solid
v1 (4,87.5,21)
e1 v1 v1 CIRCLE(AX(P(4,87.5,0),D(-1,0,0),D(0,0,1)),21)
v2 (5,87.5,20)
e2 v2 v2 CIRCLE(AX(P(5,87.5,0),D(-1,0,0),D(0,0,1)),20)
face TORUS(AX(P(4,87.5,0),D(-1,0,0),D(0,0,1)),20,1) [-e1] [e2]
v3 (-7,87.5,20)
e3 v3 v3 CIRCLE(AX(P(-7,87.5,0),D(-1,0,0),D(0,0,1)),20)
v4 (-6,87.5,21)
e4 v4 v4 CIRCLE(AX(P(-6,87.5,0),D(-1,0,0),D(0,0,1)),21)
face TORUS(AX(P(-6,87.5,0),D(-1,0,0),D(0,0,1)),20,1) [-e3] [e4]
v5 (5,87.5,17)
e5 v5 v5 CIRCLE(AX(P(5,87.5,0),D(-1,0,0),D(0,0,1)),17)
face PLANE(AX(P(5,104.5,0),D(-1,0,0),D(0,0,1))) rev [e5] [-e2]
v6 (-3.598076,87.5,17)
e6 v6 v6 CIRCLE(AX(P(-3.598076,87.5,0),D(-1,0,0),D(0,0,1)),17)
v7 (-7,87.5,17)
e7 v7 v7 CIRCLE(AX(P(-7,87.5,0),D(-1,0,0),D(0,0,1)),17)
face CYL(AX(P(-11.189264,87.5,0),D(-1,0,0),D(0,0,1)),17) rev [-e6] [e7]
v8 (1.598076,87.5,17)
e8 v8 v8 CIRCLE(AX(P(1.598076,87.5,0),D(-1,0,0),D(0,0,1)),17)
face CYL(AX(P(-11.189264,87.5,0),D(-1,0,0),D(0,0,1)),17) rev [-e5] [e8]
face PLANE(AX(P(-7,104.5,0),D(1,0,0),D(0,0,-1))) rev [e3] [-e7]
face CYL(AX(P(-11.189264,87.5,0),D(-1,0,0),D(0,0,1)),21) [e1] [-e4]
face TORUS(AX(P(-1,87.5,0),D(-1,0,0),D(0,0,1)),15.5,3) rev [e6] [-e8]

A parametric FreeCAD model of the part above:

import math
import FreeCAD as App
import Part
import Sketcher

V = App.Vector
Q = App.Units.Quantity

doc = App.newDocument("Part")
body = doc.addObject("PartDesign::Body", "Body")

sketch1 = body.newObject("Sketcher::SketchObject", "Sketch")
sketch1.AttachmentSupport = (doc.getObject("XY_Plane"), [""])
sketch1.MapMode = "FlatFace"
sketch1.addGeometry(Part.LineSegment(V(-7, 104.5, 0), V(-3.6, 104.5, 0)), False)
sketch1.addGeometry(Part.ArcOfCircle(Part.Circle(V(-1, 103, 0), V(0, 0, 1), 3), math.radians(30), math.radians(150)), False)
sketch1.addGeometry(Part.LineSegment(V(1.6, 104.5, 0), V(5, 104.5, 0)), False)
sketch1.addGeometry(Part.LineSegment(V(5, 104.5, 0), V(5, 107.5, 0)), False)
sketch1.addGeometry(Part.ArcOfCircle(Part.Circle(V(4, 107.5, 0), V(0, 0, 1), 1), math.radians(0), math.radians(90)), False)
sketch1.addGeometry(Part.LineSegment(V(4, 108.5, 0), V(-6, 108.5, 0)), False)
sketch1.addGeometry(Part.ArcOfCircle(Part.Circle(V(-6, 107.5, 0), V(0, 0, 1), 1), math.radians(90), math.radians(180)), False)
sketch1.addGeometry(Part.LineSegment(V(-7, 107.5, 0), V(-7, 104.5, 0)), False)
sketch1.addGeometry(Part.LineSegment(V(-7, 87.5, 0), V(5, 87.5, 0)), True)
sketch1.addConstraint(Sketcher.Constraint("Coincident", 0, 2, 1, 2))
sketch1.addConstraint(Sketcher.Constraint("Coincident", 1, 1, 2, 1))
sketch1.addConstraint(Sketcher.Constraint("Coincident", 2, 2, 3, 1))
sketch1.addConstraint(Sketcher.Constraint("Tangent", 3, 2, 4, 1))
sketch1.addConstraint(Sketcher.Constraint("Tangent", 4, 2, 5, 1))
sketch1.addConstraint(Sketcher.Constraint("Tangent", 5, 2, 6, 1))
sketch1.addConstraint(Sketcher.Constraint("Tangent", 6, 2, 7, 1))
sketch1.addConstraint(Sketcher.Constraint("Coincident", 7, 2, 0, 1))
sketch1.addConstraint(Sketcher.Constraint("Horizontal", 0))
sketch1.addConstraint(Sketcher.Constraint("Horizontal", 2))
sketch1.addConstraint(Sketcher.Constraint("Vertical", 3))
sketch1.addConstraint(Sketcher.Constraint("Horizontal", 5))
sketch1.addConstraint(Sketcher.Constraint("Vertical", 7))
sketch1.addConstraint(Sketcher.Constraint("Horizontal", 8))
sketch1.addConstraint(Sketcher.Constraint("Equal", 4, 6))
sketch1.addConstraint(Sketcher.Constraint("Horizontal", 0, 2, 1, 1))
sketch1.addConstraint(Sketcher.Constraint("Vertical", 7, 2, 8, 1))
sketch1.addConstraint(Sketcher.Constraint("Vertical", 3, 2, 8, 2))
sketch1.addConstraint(Sketcher.Constraint("Equal", 0, 2))
sketch1.addConstraint(Sketcher.Constraint("Radius", 1, Q("3 mm")))
sketch1.addConstraint(Sketcher.Constraint("Radius", 4, Q("1 mm")))
sketch1.addConstraint(Sketcher.Constraint("DistanceX", 5, 2, 5, 1, Q("10 mm")))
sketch1.addConstraint(Sketcher.Constraint("DistanceY", 3, 1, 3, 2, Q("3 mm")))
sketch1.addConstraint(Sketcher.Constraint("DistanceX", 1, 3, -1, 1, Q("1 mm")))
sketch1.addConstraint(Sketcher.Constraint("DistanceY", -1, 1, 1, 3, Q("103 mm")))
sketch1.addConstraint(Sketcher.Constraint("DistanceY", 8, 1, 7, 2, Q("17 mm")))
sketch1.addConstraint(Sketcher.Constraint("DistanceY", -1, 1, 4, 3, Q("107.5 mm")))
revolution = body.newObject("PartDesign::Revolution", "Revolution")
revolution.Profile = sketch1
revolution.ReferenceAxis = (sketch1, ["Axis0"])
revolution.Angle = 360

doc.recompute()
